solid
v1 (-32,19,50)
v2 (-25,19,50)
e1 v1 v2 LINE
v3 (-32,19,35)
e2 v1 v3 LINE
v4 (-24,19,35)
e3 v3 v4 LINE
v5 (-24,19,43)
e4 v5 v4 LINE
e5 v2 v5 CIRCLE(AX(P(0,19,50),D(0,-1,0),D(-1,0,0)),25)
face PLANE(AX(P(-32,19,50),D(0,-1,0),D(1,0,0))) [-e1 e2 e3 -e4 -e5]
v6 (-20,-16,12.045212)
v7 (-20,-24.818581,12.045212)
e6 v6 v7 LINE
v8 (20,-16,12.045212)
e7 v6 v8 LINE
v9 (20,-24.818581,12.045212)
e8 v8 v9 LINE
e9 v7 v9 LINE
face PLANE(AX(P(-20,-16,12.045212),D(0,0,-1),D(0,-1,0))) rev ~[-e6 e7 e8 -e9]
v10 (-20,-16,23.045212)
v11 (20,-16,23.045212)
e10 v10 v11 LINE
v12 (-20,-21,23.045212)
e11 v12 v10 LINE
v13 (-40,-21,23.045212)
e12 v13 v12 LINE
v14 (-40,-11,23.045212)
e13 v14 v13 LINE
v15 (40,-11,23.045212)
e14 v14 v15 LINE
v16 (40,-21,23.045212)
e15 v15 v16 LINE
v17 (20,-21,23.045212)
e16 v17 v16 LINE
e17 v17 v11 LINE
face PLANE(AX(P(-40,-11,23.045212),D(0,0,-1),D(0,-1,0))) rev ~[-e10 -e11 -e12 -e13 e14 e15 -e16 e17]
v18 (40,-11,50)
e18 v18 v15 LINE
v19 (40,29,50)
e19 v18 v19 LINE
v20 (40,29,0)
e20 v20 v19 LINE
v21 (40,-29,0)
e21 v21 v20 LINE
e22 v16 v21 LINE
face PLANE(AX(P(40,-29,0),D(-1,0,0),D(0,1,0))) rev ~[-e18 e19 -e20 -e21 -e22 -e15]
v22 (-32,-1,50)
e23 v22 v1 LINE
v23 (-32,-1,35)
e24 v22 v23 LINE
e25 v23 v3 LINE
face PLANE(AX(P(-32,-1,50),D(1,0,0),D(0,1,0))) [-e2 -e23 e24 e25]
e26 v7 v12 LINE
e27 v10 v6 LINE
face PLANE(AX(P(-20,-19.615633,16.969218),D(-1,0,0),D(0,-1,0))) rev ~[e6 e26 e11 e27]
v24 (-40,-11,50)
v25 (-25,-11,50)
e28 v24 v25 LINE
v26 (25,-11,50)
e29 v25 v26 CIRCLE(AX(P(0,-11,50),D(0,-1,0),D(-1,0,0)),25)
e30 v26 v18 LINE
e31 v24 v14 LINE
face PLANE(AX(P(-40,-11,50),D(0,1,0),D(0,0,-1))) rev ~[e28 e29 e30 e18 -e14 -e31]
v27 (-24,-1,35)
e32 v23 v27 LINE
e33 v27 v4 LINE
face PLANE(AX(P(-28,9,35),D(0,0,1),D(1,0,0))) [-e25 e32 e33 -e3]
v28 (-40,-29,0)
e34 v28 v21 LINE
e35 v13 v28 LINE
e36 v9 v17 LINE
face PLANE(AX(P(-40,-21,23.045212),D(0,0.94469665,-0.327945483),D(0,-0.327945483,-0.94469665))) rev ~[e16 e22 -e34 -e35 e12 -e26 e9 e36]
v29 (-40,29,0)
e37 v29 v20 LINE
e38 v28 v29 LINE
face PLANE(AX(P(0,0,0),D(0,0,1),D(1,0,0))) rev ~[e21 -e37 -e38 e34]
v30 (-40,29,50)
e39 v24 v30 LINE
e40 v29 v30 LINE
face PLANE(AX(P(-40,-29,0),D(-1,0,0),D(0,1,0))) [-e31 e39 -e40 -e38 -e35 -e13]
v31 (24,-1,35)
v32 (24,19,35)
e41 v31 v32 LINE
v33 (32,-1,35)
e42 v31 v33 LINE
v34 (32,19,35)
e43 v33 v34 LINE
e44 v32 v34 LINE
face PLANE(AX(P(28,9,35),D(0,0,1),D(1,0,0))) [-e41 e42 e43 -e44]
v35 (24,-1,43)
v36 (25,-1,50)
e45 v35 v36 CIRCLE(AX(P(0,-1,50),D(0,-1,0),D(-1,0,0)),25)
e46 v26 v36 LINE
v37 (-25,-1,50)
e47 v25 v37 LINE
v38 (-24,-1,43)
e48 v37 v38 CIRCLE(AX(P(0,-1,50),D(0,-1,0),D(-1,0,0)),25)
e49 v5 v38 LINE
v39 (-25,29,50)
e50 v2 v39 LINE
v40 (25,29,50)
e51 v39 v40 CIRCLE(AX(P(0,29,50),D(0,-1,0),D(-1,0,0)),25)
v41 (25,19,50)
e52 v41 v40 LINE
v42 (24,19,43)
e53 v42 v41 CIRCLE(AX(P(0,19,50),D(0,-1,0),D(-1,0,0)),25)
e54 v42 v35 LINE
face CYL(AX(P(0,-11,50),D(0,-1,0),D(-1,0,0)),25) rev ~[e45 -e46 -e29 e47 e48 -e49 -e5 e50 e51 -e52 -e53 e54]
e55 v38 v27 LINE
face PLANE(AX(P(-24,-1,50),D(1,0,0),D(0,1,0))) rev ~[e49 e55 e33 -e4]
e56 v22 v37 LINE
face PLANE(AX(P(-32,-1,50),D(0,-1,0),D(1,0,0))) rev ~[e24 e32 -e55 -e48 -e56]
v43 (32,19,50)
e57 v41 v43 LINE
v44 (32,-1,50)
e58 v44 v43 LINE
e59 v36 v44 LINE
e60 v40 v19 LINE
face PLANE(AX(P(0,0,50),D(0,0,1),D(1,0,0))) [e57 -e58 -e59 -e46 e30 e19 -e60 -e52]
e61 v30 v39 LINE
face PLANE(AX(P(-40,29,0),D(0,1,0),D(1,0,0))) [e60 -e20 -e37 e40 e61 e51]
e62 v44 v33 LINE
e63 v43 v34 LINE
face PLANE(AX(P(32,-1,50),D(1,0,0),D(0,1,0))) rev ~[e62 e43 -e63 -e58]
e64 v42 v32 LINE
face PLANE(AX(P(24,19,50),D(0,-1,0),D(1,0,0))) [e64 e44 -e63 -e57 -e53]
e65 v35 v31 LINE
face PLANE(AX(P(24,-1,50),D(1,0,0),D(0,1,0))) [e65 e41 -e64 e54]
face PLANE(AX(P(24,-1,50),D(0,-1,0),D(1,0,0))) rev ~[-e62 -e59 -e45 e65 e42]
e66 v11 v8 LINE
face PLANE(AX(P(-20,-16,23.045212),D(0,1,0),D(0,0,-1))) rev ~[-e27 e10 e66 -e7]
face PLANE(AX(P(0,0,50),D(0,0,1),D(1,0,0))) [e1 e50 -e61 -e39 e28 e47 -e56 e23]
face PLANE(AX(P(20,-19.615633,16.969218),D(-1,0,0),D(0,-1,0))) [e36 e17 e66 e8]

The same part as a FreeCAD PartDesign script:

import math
import FreeCAD as App
import Part
import Sketcher
from FreeCAD import Vector
Q = App.Units.Quantity

doc = App.newDocument("Part")
body = doc.addObject("PartDesign::Body", "Body")

# Sketch on XY plane
sketch1 = body.newObject("Sketcher::SketchObject", "Sketch")
sketch1.AttachmentSupport = (doc.getObject("XY_Plane"), [""])
sketch1.MapMode = "FlatFace"
sketch1.addGeometry(Part.LineSegment(Vector(-40, 29, 0), Vector(-40, -29, 0)), False)
sketch1.addGeometry(Part.LineSegment(Vector(-40, -29, 0), Vector(40, -29, 0)), False)
sketch1.addGeometry(Part.LineSegment(Vector(40, -29, 0), Vector(40, 29, 0)), False)
sketch1.addGeometry(Part.LineSegment(Vector(40, 29, 0), Vector(-40, 29, 0)), False)
sketch1.addConstraint(Sketcher.Constraint("Coincident", 0, 2, 1, 1))
sketch1.addConstraint(Sketcher.Constraint("Coincident", 1, 2, 2, 1))
sketch1.addConstraint(Sketcher.Constraint("Coincident", 2, 2, 3, 1))
sketch1.addConstraint(Sketcher.Constraint("Coincident", 3, 2, 0, 1))
sketch1.addConstraint(Sketcher.Constraint("Vertical", 0))
sketch1.addConstraint(Sketcher.Constraint("Horizontal", 1))
sketch1.addConstraint(Sketcher.Constraint("Vertical", 2))
sketch1.addConstraint(Sketcher.Constraint("Horizontal", 3))
sketch1.addConstraint(Sketcher.Constraint("Symmetric", 0, 2, 2, 2, -1, 1))
sketch1.addConstraint(Sketcher.Constraint("DistanceX", 1, 1, 1, 2, Q("80 mm")))
sketch1.addConstraint(Sketcher.Constraint("DistanceY", 0, 2, 0, 1, Q("58 mm")))
pad1 = body.newObject("PartDesign::Pad", "Pad")
pad1.Profile = sketch1
pad1.Length = 50

# Sketch on YZ plane
sketch2 = body.newObject("Sketcher::SketchObject", "Sketch001")
sketch2.AttachmentSupport = (doc.getObject("YZ_Plane"), [""])
sketch2.MapMode = "FlatFace"
sketch2.AttachmentOffset = App.Placement(Vector(0, 0, -40), App.Rotation())
sketch2.addGeometry(Part.LineSegment(Vector(-29, 50, 0), Vector(-11, 50, 0)), False)
sketch2.addGeometry(Part.LineSegment(Vector(-11, 50, 0), Vector(-11, 23, 0)), False)
sketch2.addGeometry(Part.LineSegment(Vector(-11, 23, 0), Vector(-21, 23, 0)), False)
sketch2.addGeometry(Part.LineSegment(Vector(-21, 23, 0), Vector(-29, 0, 0)), False)
sketch2.addGeometry(Part.LineSegment(Vector(-29, 0, 0), Vector(-29, 50, 0)), False)
sketch2.addConstraint(Sketcher.Constraint("Coincident", 0, 2, 1, 1))
sketch2.addConstraint(Sketcher.Constraint("Coincident", 1, 2, 2, 1))
sketch2.addConstraint(Sketcher.Constraint("Coincident", 2, 2, 3, 1))
sketch2.addConstraint(Sketcher.Constraint("Coincident", 3, 2, 4, 1))
sketch2.addConstraint(Sketcher.Constraint("Coincident", 4, 2, 0, 1))
sketch2.addConstraint(Sketcher.Constraint("Horizontal", 0))
sketch2.addConstraint(Sketcher.Constraint("Vertical", 1))
sketch2.addConstraint(Sketcher.Constraint("Horizontal", 2))
sketch2.addConstraint(Sketcher.Constraint("Vertical", 4))
sketch2.addConstraint(Sketcher.Constraint("PointOnObject", 3, 2, -1))
sketch2.addConstraint(Sketcher.Constraint("DistanceX", 0, 1, 0, 2, Q("18 mm")))
sketch2.addConstraint(Sketcher.Constraint("DistanceX", 2, 2, 2, 1, Q("10 mm")))
sketch2.addConstraint(Sketcher.Constraint("DistanceY", 4, 1, 4, 2, Q("50 mm")))
sketch2.addConstraint(Sketcher.Constraint("DistanceX", 0, 2, -1, 1, Q("11 mm")))
sketch2.addConstraint(Sketcher.Constraint("Distance", 3, Q("24.394298 mm")))
pocket1 = body.newObject("PartDesign::Pocket", "Pocket")
pocket1.Profile = sketch2
pocket1.Type = "ThroughAll"
pocket1.Reversed = True

# Sketch on YZ plane
sketch3 = body.newObject("Sketcher::SketchObject", "Sketch002")
sketch3.AttachmentSupport = (doc.getObject("YZ_Plane"), [""])
sketch3.MapMode = "FlatFace"
sketch3.AttachmentOffset = App.Placement(Vector(0, 0, -20), App.Rotation())
sketch3.addGeometry(Part.LineSegment(Vector(-25, 12, 0), Vector(-21, 23, 0)), False)
sketch3.addGeometry(Part.LineSegment(Vector(-21, 23, 0), Vector(-16, 23, 0)), False)
sketch3.addGeometry(Part.LineSegment(Vector(-16, 23, 0), Vector(-16, 12, 0)), False)
sketch3.addGeometry(Part.LineSegment(Vector(-16, 12, 0), Vector(-25, 12, 0)), False)
sketch3.addConstraint(Sketcher.Constraint("Coincident", 0, 2, 1, 1))
sketch3.addConstraint(Sketcher.Constraint("Coincident", 1, 2, 2, 1))
sketch3.addConstraint(Sketcher.Constraint("Coincident", 2, 2, 3, 1))
sketch3.addConstraint(Sketcher.Constraint("Coincident", 3, 2, 0, 1))
sketch3.addConstraint(Sketcher.Constraint("Horizontal", 1))
sketch3.addConstraint(Sketcher.Constraint("Vertical", 2))
sketch3.addConstraint(Sketcher.Constraint("Horizontal", 3))
sketch3.addConstraint(Sketcher.Constraint("DistanceX", 1, 1, 1, 2, Q("5 mm")))
sketch3.addConstraint(Sketcher.Constraint("DistanceY", 2, 2, 2, 1, Q("11 mm")))
sketch3.addConstraint(Sketcher.Constraint("DistanceX", 0, 2, -1, 1, Q("21 mm")))
sketch3.addConstraint(Sketcher.Constraint("DistanceX", 3, 2, 3, 1, Q("8.818581 mm")))
sketch3.addConstraint(Sketcher.Constraint("DistanceY", -1, 1, 0, 2, Q("23.045212 mm")))
pocket2 = body.newObject("PartDesign::Pocket", "Pocket001")
pocket2.Profile = sketch3
pocket2.Length = 40
pocket2.Reversed = True

# Sketch on XY plane
sketch4 = body.newObject("Sketcher::SketchObject", "Sketch003")
sketch4.AttachmentSupport = (doc.getObject("XY_Plane"), [""])
sketch4.MapMode = "FlatFace"
sketch4.AttachmentOffset = App.Placement(Vector(0, 0, 50), App.Rotation())
sketch4.addGeometry(Part.LineSegment(Vector(-32, 19, 0), Vector(-32, -1, 0)), False)
sketch4.addGeometry(Part.LineSegment(Vector(-32, -1, 0), Vector(-24, -1, 0)), False)
sketch4.addGeometry(Part.LineSegment(Vector(-24, -1, 0), Vector(-24, 19, 0)), False)
sketch4.addGeometry(Part.LineSegment(Vector(-24, 19, 0), Vector(-32, 19, 0)), False)
sketch4.addGeometry(Part.LineSegment(Vector(24, 19, 0), Vector(24, -1, 0)), False)
sketch4.addGeometry(Part.LineSegment(Vector(24, -1, 0), Vector(32, -1, 0)), False)
sketch4.addGeometry(Part.LineSegment(Vector(32, -1, 0), Vector(32, 19, 0)), False)
sketch4.addGeometry(Part.LineSegment(Vector(32, 19, 0), Vector(24, 19, 0)), False)
sketch4.addConstraint(Sketcher.Constraint("Coincident", 0, 2, 1, 1))
sketch4.addConstraint(Sketcher.Constraint("Coincident", 1, 2, 2, 1))
sketch4.addConstraint(Sketcher.Constraint("Coincident", 2, 2, 3, 1))
sketch4.addConstraint(Sketcher.Constraint("Coincident", 3, 2, 0, 1))
sketch4.addConstraint(Sketcher.Constraint("Coincident", 4, 2, 5, 1))
sketch4.addConstraint(Sketcher.Constraint("Coincident", 5, 2, 6, 1))
sketch4.addConstraint(Sketcher.Constraint("Coincident", 6, 2, 7, 1))
sketch4.addConstraint(Sketcher.Constraint("Coincident", 7, 2, 4, 1))
sketch4.addConstraint(Sketcher.Constraint("Vertical", 0))
sketch4.addConstraint(Sketcher.Constraint("Horizontal", 1))
sketch4.addConstraint(Sketcher.Constraint("Vertical", 2))
sketch4.addConstraint(Sketcher.Constraint("Horizontal", 3))
sketch4.addConstraint(Sketcher.Constraint("Vertical", 4))
sketch4.addConstraint(Sketcher.Constraint("Horizontal", 5))
sketch4.addConstraint(Sketcher.Constraint("Vertical", 6))
sketch4.addConstraint(Sketcher.Constraint("Horizontal", 7))
sketch4.addConstraint(Sketcher.Constraint("Symmetric", 1, 2, 4, 2, -2))
sketch4.addConstraint(Sketcher.Constraint("Symmetric", 3, 2, 6, 2, -2))
sketch4.addConstraint(Sketcher.Constraint("DistanceX", 1, 1, 1, 2, Q("8 mm")))
sketch4.addConstraint(Sketcher.Constraint("DistanceY", 0, 2, 0, 1, Q("20 mm")))
sketch4.addConstraint(Sketcher.Constraint("DistanceX", 0, 2, -1, 1, Q("32 mm")))
sketch4.addConstraint(Sketcher.Constraint("DistanceY", 0, 2, -1, 1, Q("1 mm")))
pocket3 = body.newObject("PartDesign::Pocket", "Pocket002")
pocket3.Profile = sketch4
pocket3.Length = 15

# Sketch on XZ plane
sketch5 = body.newObject("Sketcher::SketchObject", "Sketch004")
sketch5.AttachmentSupport = (doc.getObject("XZ_Plane"), [""])
sketch5.MapMode = "FlatFace"
sketch5.AttachmentOffset = App.Placement(Vector(0, 0, 11), App.Rotation())
sketch5.addGeometry(Part.LineSegment(Vector(25, 50, 0), Vector(-25, 50, 0)), False)
sketch5.addGeometry(Part.ArcOfCircle(Part.Circle(Vector(0, 50, 0), Vector(0, 0, 1), 25), math.radians(180), math.radians(360)), False)
sketch5.addConstraint(Sketcher.Constraint("Coincident", 0, 1, 1, 2))
sketch5.addConstraint(Sketcher.Constraint("Coincident", 1, 1, 0, 2))
sketch5.addConstraint(Sketcher.Constraint("Horizontal", 0))
sketch5.addConstraint(Sketcher.Constraint("PointOnObject", 1, 3, -2))
sketch5.addConstraint(Sketcher.Constraint("Horizontal", 1, 3, 0, 1))
sketch5.addConstraint(Sketcher.Constraint("Radius", 1, Q("25 mm")))
sketch5.addConstraint(Sketcher.Constraint("DistanceY", -1, 1, 1, 3, Q("50 mm")))
pocket4 = body.newObject("PartDesign::Pocket", "Pocket003")
pocket4.Profile = sketch5
pocket4.Type = "ThroughAll"

doc.recompute()
